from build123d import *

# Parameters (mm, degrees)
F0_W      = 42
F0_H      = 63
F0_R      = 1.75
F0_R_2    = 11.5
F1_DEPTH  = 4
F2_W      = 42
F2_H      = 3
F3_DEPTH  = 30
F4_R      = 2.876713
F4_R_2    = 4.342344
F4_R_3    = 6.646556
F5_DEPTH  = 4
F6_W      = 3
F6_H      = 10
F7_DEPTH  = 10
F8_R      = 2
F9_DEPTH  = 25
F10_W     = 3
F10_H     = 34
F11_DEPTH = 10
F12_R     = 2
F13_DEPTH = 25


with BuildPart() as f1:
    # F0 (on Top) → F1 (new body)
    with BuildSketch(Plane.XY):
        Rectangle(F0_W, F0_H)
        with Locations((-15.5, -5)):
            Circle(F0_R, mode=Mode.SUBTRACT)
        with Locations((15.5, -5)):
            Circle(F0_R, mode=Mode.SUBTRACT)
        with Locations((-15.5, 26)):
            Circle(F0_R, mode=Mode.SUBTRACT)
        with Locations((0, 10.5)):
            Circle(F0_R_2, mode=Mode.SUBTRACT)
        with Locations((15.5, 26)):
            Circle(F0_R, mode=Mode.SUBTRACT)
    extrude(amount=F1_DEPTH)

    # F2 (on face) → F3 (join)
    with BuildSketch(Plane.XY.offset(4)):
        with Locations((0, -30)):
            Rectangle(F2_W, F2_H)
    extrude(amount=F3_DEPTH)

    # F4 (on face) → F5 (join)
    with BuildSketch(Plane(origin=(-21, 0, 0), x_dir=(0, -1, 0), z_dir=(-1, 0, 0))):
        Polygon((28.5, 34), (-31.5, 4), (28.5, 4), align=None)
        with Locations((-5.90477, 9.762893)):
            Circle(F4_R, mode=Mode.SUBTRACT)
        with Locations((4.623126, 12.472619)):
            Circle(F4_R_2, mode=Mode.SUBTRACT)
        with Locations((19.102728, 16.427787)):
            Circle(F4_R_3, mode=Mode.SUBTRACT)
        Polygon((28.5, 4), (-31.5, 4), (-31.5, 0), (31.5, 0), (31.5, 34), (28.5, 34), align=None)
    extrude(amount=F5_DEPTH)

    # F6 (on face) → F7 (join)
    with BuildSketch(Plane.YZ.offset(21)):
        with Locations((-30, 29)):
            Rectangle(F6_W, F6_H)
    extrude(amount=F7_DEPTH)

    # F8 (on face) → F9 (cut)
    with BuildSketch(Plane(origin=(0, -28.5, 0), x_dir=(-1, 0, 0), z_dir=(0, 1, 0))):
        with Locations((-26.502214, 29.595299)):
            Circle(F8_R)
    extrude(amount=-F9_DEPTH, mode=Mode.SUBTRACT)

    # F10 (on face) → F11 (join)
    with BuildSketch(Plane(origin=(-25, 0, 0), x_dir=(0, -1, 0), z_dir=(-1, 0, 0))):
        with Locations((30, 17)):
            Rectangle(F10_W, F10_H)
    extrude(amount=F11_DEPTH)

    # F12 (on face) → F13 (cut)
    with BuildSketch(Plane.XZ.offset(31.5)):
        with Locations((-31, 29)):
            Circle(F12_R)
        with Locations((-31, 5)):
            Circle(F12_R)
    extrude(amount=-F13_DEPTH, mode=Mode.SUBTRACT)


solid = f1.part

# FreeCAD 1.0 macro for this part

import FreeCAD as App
import Part
import Sketcher

V = App.Vector


def add_polygon(sketch, points):
    """Adds a closed chain of lines whose ends are joined by coincident constraints."""
    first, n = sketch.GeometryCount, len(points)
    for a, b in zip(points, points[1:] + points[:1]):
        sketch.addGeometry(Part.LineSegment(App.Vector(*a, 0), App.Vector(*b, 0)), False)
    for i in range(n):
        sketch.addConstraint(Sketcher.Constraint("Coincident", first + i, 2, first + (i + 1) % n, 1))

doc = App.newDocument("Part")
body = doc.addObject("PartDesign::Body", "Body")

sketch1 = doc.addObject("Sketcher::SketchObject", "Sketch")
body.addObject(sketch1)
sketch1.AttachmentSupport = (doc.XY_Plane, [""])
sketch1.MapMode = "FlatFace"
add_polygon(sketch1, [(-21, 31.5), (-21, -31.5), (21, -31.5), (21, 31.5)])
sketch1.addGeometry(Part.Circle(V(-15.5, -5, 0), V(0, 0, 1), 1.8), False)
sketch1.addGeometry(Part.Circle(V(15.5, -5, 0), V(0, 0, 1), 1.8), False)
sketch1.addGeometry(Part.Circle(V(-15.5, 26, 0), V(0, 0, 1), 1.8), False)
sketch1.addGeometry(Part.Circle(V(0, 10.5, 0), V(0, 0, 1), 11.5), False)
sketch1.addGeometry(Part.Circle(V(15.5, 26, 0), V(0, 0, 1), 1.8), False)
sketch1.addConstraint(Sketcher.Constraint("Vertical", 0))
sketch1.addConstraint(Sketcher.Constraint("Horizontal", 1))
sketch1.addConstraint(Sketcher.Constraint("Vertical", 2))
sketch1.addConstraint(Sketcher.Constraint("Horizontal", 3))
sketch1.addConstraint(Sketcher.Constraint("Equal", 4, 5))
sketch1.addConstraint(Sketcher.Constraint("Equal", 5, 6))
sketch1.addConstraint(Sketcher.Constraint("Equal", 6, 8))
sketch1.addConstraint(Sketcher.Constraint("Symmetric", 0, 2, 2, 2, -1, 1))
sketch1.addConstraint(Sketcher.Constraint("Symmetric", 4, 3, 5, 3, -2))
sketch1.addConstraint(Sketcher.Constraint("Symmetric", 6, 3, 8, 3, -2))
sketch1.addConstraint(Sketcher.Constraint("PointOnObject", 7, 3, -2))
sketch1.addConstraint(Sketcher.Constraint("Vertical", 4, 3, 6, 3))
sketch1.addConstraint(Sketcher.Constraint("Diameter", 7, 23.0))
sketch1.addConstraint(Sketcher.Constraint("Diameter", 4, 3.5))
sketch1.addConstraint(Sketcher.Constraint("DistanceX", 1, 1, 1, 2, 42.0))
sketch1.addConstraint(Sketcher.Constraint("DistanceY", 0, 2, 0, 1, 63.0))
sketch1.addConstraint(Sketcher.Constraint("DistanceY", 4, 3, -1, 1, 5.0))
sketch1.addConstraint(Sketcher.Constraint("DistanceY", -1, 1, 6, 3, 26.0))
sketch1.addConstraint(Sketcher.Constraint("DistanceX", 4, 3, 5, 3, 31.0))
sketch1.addConstraint(Sketcher.Constraint("DistanceY", 0, 2, 7, 3, 42.0))
pad1 = doc.addObject("PartDesign::Pad", "Pad")
body.addObject(pad1)
pad1.Profile = sketch1
pad1.Length = 4

sketch2 = doc.addObject("Sketcher::SketchObject", "Sketch001")
body.addObject(sketch2)
sketch2.AttachmentSupport = (doc.XY_Plane, [""])
sketch2.MapMode = "FlatFace"
sketch2.AttachmentOffset = App.Placement(V(0, 0, 4), App.Rotation())
add_polygon(sketch2, [(-21, -28.5), (-21, -31.5), (21, -31.5), (21, -28.5)])
sketch2.addConstraint(Sketcher.Constraint("Vertical", 0))
sketch2.addConstraint(Sketcher.Constraint("Horizontal", 1))
sketch2.addConstraint(Sketcher.Constraint("Vertical", 2))
sketch2.addConstraint(Sketcher.Constraint("Horizontal", 3))
sketch2.addConstraint(Sketcher.Constraint("DistanceX", 1, 1, 1, 2, 42.0))
sketch2.addConstraint(Sketcher.Constraint("DistanceY", 0, 2, 0, 1, 3.0))
sketch2.addConstraint(Sketcher.Constraint("DistanceX", 0, 2, -1, 1, 21.0))
sketch2.addConstraint(Sketcher.Constraint("DistanceY", 0, 2, -1, 1, 31.5))
pad2 = doc.addObject("PartDesign::Pad", "Pad001")
body.addObject(pad2)
pad2.Profile = sketch2
pad2.Length = 30

sketch3 = doc.addObject("Sketcher::SketchObject", "Sketch002")
body.addObject(sketch3)
sketch3.AttachmentSupport = (doc.YZ_Plane, [""])
sketch3.MapMode = "FlatFace"
sketch3.AttachmentOffset = App.Placement(V(0, 0, -21), App.Rotation())
add_polygon(sketch3, [(-28.5, 34), (31.5, 4), (31.5, 0), (-31.5, 0), (-31.5, 34)])
sketch3.addGeometry(Part.Circle(V(5.9, 9.8, 0), V(0, 0, 1), 2.9), False)
sketch3.addGeometry(Part.Circle(V(-4.6, 12.5, 0), V(0, 0, 1), 4.3), False)
sketch3.addGeometry(Part.Circle(V(-19.1, 16.4, 0), V(0, 0, 1), 6.6), False)
sketch3.addConstraint(Sketcher.Constraint("Vertical", 1))
sketch3.addConstraint(Sketcher.Constraint("Horizontal", 2))
sketch3.addConstraint(Sketcher.Constraint("Vertical", 3))
sketch3.addConstraint(Sketcher.Constraint("Horizontal", 4))
sketch3.addConstraint(Sketcher.Constraint("Symmetric", 1, 2, 2, 2, -1, 1))
sketch3.addConstraint(Sketcher.Constraint("DistanceX", 2, 2, 2, 1, 63.0))
sketch3.addConstraint(Sketcher.Constraint("DistanceX", 4, 1, 4, 2, 3.0))
sketch3.addConstraint(Sketcher.Constraint("DistanceY", 1, 2, 1, 1, 4.0))
sketch3.addConstraint(Sketcher.Constraint("DistanceY", 3, 1, 3, 2, 34.0))
sketch3.addConstraint(Sketcher.Constraint("Diameter", 5, 5.753426))
sketch3.addConstraint(Sketcher.Constraint("Diameter", 6, 8.684688))
sketch3.addConstraint(Sketcher.Constraint("Diameter", 7, 13.293112))
sketch3.addConstraint(Sketcher.Constraint("DistanceX", -1, 1, 5, 3, 5.90477))
sketch3.addConstraint(Sketcher.Constraint("DistanceY", -1, 1, 6, 3, 12.472619))
sketch3.addConstraint(Sketcher.Constraint("DistanceY", -1, 1, 5, 3, 9.762893))
sketch3.addConstraint(Sketcher.Constraint("DistanceX", 6, 3, -1, 1, 4.623126))
sketch3.addConstraint(Sketcher.Constraint("DistanceX", 7, 3, -1, 1, 19.102728))
sketch3.addConstraint(Sketcher.Constraint("DistanceY", -1, 1, 7, 3, 16.427787))
pad3 = doc.addObject("PartDesign::Pad", "Pad002")
body.addObject(pad3)
pad3.Profile = sketch3
pad3.Length = 4
pad3.Reversed = True

sketch4 = doc.addObject("Sketcher::SketchObject", "Sketch003")
body.addObject(sketch4)
sketch4.AttachmentSupport = (doc.YZ_Plane, [""])
sketch4.MapMode = "FlatFace"
sketch4.AttachmentOffset = App.Placement(V(0, 0, 21), App.Rotation())
add_polygon(sketch4, [(-31.5, 34), (-31.5, 24), (-28.5, 24), (-28.5, 34)])
sketch4.addConstraint(Sketcher.Constraint("Vertical", 0))
sketch4.addConstraint(Sketcher.Constraint("Horizontal", 1))
sketch4.addConstraint(Sketcher.Constraint("Vertical", 2))
sketch4.addConstraint(Sketcher.Constraint("Horizontal", 3))
sketch4.addConstraint(Sketcher.Constraint("DistanceX", 1, 1, 1, 2, 3.0))
sketch4.addConstraint(Sketcher.Constraint("DistanceY", 0, 2, 0, 1, 10.0))
sketch4.addConstraint(Sketcher.Constraint("DistanceY", -1, 1, 0, 2, 24.0))
sketch4.addConstraint(Sketcher.Constraint("DistanceX", 0, 2, -1, 1, 31.5))
pad4 = doc.addObject("PartDesign::Pad", "Pad003")
body.addObject(pad4)
pad4.Profile = sketch4
pad4.Length = 10

sketch5 = doc.addObject("Sketcher::SketchObject", "Sketch004")
body.addObject(sketch5)
sketch5.AttachmentSupport = (doc.XZ_Plane, [""])
sketch5.MapMode = "FlatFace"
sketch5.AttachmentOffset = App.Placement(V(0, 0, 28.5), App.Rotation())
sketch5.addGeometry(Part.Circle(V(26.5, 29.6, 0), V(0, 0, 1), 2), False)
sketch5.addConstraint(Sketcher.Constraint("Diameter", 0, 4.0))
sketch5.addConstraint(Sketcher.Constraint("DistanceY", -1, 1, 0, 3, 29.595299))
sketch5.addConstraint(Sketcher.Constraint("DistanceX", -1, 1, 0, 3, 26.502214))
pocket1 = doc.addObject("PartDesign::Pocket", "Pocket")
body.addObject(pocket1)
pocket1.Profile = sketch5
pocket1.Length = 25
pocket1.Reversed = True

sketch6 = doc.addObject("Sketcher::SketchObject", "Sketch005")
body.addObject(sketch6)
sketch6.AttachmentSupport = (doc.YZ_Plane, [""])
sketch6.MapMode = "FlatFace"
sketch6.AttachmentOffset = App.Placement(V(0, 0, -25), App.Rotation())
add_polygon(sketch6, [(-28.5, 34), (-28.5, 0), (-31.5, 0), (-31.5, 34)])
sketch6.addConstraint(Sketcher.Constraint("Vertical", 0))
sketch6.addConstraint(Sketcher.Constraint("Horizontal", 1))
sketch6.addConstraint(Sketcher.Constraint("Vertical", 2))
sketch6.addConstraint(Sketcher.Constraint("Horizontal", 3))
sketch6.addConstraint(Sketcher.Constraint("PointOnObject", 0, 2, -1))
sketch6.addConstraint(Sketcher.Constraint("DistanceX", 1, 2, 1, 1, 3.0))
sketch6.addConstraint(Sketcher.Constraint("DistanceY", 0, 2, 0, 1, 34.0))
sketch6.addConstraint(Sketcher.Constraint("DistanceX", 0, 2, -1, 1, 28.5))
pad5 = doc.addObject("PartDesign::Pad", "Pad004")
body.addObject(pad5)
pad5.Profile = sketch6
pad5.Length = 10
pad5.Reversed = True

sketch7 = doc.addObject("Sketcher::SketchObject", "Sketch006")
body.addObject(sketch7)
sketch7.AttachmentSupport = (doc.XZ_Plane, [""])
sketch7.MapMode = "FlatFace"
sketch7.AttachmentOffset = App.Placement(V(0, 0, 31.5), App.Rotation())
sketch7.addGeometry(Part.Circle(V(-31, 29, 0), V(0, 0, 1), 2), False)
sketch7.addGeometry(Part.Circle(V(-31, 5, 0), V(0, 0, 1), 2), False)
sketch7.addConstraint(Sketcher.Constraint("Equal", 0, 1))
sketch7.addConstraint(Sketcher.Constraint("Vertical", 0, 3, 1, 3))
sketch7.addConstraint(Sketcher.Constraint("Diameter", 0, 4.0))
sketch7.addConstraint(Sketcher.Constraint("DistanceX", 0, 3, -1, 1, 31.0))
sketch7.addConstraint(Sketcher.Constraint("DistanceY", -1, 1, 0, 3, 29.0))
sketch7.addConstraint(Sketcher.Constraint("DistanceY", -1, 1, 1, 3, 5.0))
pocket2 = doc.addObject("PartDesign::Pocket", "Pocket001")
body.addObject(pocket2)
pocket2.Profile = sketch7
pocket2.Length = 25

doc.recompute()
